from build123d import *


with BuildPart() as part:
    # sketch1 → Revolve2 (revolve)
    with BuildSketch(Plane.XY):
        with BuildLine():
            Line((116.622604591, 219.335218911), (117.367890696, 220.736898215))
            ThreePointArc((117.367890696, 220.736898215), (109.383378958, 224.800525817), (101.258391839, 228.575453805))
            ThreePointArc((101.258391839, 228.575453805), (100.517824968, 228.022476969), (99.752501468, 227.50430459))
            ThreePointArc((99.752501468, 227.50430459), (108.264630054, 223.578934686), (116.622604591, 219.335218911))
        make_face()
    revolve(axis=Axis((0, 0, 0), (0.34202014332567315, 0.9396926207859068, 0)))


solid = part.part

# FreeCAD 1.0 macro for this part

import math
import FreeCAD as App
import Part
import Sketcher

V = App.Vector
Q = App.Units.Quantity

doc = App.newDocument("Part")
body = doc.addObject("PartDesign::Body", "Body")

# Sketch on XY plane
sketch1 = doc.addObject("Sketcher::SketchObject", "Sketch")
body.addObject(sketch1)
sketch1.AttachmentSupport = (doc.XY_Plane, [""])
sketch1.MapMode = "FlatFace"
sketch1.addGeometry([
    Part.LineSegment(V(116.6, 219.3, 0), V(117.4, 220.7, 0)),
    Part.ArcOfCircle(Part.Circle(V(0, 0, 0), V(0, 0, 1), 250), math.radians(62), math.radians(66.11)),
    Part.ArcOfCircle(Part.Circle(V(88.9, 244.3, 0), V(0, 0, 1), 20), math.radians(-57.22), math.radians(-51.93)),
    Part.ArcOfCircle(Part.Circle(V(0, 0, 0), V(0, 0, 1), 248.4), math.radians(62), math.radians(66.32)),
], False)
sketch1.addGeometry(Part.LineSegment(V(0, 0, 0), V(88.9, 244.3, 0)), True)  # axis
sketch1.addConstraint([
    Sketcher.Constraint("Coincident", 0, 2, 1, 1),
    Sketcher.Constraint("Coincident", 1, 2, 2, 2),
    Sketcher.Constraint("Coincident", 2, 1, 3, 2),
    Sketcher.Constraint("Coincident", 3, 1, 0, 1),
    Sketcher.Constraint("Coincident", 1, 3, -1, 1),
    Sketcher.Constraint("Coincident", 3, 3, -1, 1),
    Sketcher.Constraint("Coincident", 4, 1, -1, 1),
    Sketcher.Constraint("Coincident", 4, 2, 2, 3),
    Sketcher.Constraint("Radius", 1, Q("250 mm")),
    Sketcher.Constraint("Radius", 2, Q("20 mm")),
    Sketcher.Constraint("Angle", 0, Q("62 deg")),
    Sketcher.Constraint("Angle", 4, Q("70 deg")),
    Sketcher.Constraint("Distance", 4, Q("260.000001 mm")),
    Sketcher.Constraint("Radius", 3, Q("248.4125 mm")),
    Sketcher.Constraint("DistanceY", -1, 1, 0, 2, Q("220.736898 mm")),
])
revolution = doc.addObject("PartDesign::Revolution", "Revolution")
body.addObject(revolution)
revolution.Profile = sketch1
revolution.ReferenceAxis = (sketch1, ["Axis0"])
revolution.Angle = 360

doc.recompute()
